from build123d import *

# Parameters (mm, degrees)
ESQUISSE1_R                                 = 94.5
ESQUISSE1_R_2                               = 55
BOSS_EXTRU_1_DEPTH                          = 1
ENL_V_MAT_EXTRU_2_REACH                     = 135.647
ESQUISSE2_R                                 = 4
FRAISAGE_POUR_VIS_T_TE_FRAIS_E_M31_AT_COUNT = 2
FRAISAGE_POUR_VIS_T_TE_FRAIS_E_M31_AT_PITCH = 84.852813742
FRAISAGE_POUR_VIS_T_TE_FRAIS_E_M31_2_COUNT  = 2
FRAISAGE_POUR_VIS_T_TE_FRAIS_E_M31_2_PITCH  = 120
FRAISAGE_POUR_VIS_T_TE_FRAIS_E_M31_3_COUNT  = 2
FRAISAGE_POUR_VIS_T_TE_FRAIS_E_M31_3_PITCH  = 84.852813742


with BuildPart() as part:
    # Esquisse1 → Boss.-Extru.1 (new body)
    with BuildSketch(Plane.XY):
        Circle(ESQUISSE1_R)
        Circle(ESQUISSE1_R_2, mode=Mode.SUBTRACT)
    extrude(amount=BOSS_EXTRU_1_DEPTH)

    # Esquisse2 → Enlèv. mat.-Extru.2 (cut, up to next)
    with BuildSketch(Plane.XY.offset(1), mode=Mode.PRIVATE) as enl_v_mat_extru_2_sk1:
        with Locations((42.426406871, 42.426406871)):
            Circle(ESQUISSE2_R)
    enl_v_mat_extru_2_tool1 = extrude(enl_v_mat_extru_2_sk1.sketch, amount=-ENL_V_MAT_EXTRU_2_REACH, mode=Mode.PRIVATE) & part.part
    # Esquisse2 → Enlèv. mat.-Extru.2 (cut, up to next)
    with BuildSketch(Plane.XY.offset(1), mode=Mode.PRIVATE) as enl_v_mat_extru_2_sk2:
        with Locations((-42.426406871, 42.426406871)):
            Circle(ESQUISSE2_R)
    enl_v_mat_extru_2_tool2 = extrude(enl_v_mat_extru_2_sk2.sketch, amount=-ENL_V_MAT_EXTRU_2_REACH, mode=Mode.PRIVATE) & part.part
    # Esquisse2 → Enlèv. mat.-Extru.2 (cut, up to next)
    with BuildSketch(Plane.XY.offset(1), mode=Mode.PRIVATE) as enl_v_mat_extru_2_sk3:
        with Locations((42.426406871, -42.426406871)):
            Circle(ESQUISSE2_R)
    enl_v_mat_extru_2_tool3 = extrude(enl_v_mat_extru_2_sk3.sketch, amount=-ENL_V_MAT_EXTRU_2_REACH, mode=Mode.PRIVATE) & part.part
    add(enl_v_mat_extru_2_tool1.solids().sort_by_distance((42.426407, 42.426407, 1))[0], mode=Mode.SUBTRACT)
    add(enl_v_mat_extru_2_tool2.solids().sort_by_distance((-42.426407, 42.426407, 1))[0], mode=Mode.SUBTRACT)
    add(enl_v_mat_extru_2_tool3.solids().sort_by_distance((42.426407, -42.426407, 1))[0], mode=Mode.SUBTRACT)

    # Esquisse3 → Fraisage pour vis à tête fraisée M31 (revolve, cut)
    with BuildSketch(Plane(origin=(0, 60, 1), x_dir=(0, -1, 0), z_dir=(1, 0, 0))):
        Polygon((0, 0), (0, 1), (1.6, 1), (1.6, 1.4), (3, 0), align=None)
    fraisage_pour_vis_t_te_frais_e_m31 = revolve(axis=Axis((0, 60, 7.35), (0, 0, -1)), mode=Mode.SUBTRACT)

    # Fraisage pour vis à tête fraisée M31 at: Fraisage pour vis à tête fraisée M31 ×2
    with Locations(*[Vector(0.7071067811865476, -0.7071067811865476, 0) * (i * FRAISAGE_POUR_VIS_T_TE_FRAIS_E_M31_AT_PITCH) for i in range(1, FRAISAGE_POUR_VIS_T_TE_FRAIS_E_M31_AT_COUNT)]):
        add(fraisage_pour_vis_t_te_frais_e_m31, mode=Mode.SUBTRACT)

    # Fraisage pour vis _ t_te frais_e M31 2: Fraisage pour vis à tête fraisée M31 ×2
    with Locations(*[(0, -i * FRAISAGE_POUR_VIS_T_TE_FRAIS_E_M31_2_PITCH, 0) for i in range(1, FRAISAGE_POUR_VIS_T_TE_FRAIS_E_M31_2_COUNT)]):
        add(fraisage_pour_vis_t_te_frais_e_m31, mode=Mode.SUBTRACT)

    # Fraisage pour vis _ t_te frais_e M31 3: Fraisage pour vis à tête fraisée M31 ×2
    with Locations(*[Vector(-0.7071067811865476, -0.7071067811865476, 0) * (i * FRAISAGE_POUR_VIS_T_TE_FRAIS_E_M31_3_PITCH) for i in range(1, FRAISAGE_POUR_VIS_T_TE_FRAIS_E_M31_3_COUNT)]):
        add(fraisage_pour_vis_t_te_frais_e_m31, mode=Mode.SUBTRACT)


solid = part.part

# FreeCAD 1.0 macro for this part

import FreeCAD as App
import Part
import Sketcher
from FreeCAD import Vector
Q = App.Units.Quantity


def add_polygon(sketch, points):
    """Adds a closed chain of lines whose ends are joined by coincident constraints."""
    first, n = sketch.GeometryCount, len(points)
    for a, b in zip(points, points[1:] + points[:1]):
        sketch.addGeometry(Part.LineSegment(App.Vector(*a, 0), App.Vector(*b, 0)), False)
    for i in range(n):
        sketch.addConstraint(Sketcher.Constraint("Coincident", first + i, 2, first + (i + 1) % n, 1))

doc = App.newDocument("Part")
body = doc.addObject("PartDesign::Body", "Body")

# Sketch on XY plane
sketch1 = doc.addObject("Sketcher::SketchObject", "Sketch")
body.addObject(sketch1)
sketch1.AttachmentSupport = (doc.XY_Plane, [""])
sketch1.MapMode = "FlatFace"
sketch1.addGeometry([
    Part.Circle(Vector(0, 0, 0), Vector(0, 0, 1), 94.5),
    Part.Circle(Vector(0, 0, 0), Vector(0, 0, 1), 55),
], False)
sketch1.addConstraint([
    Sketcher.Constraint("Coincident", 0, 3, -1, 1),
    Sketcher.Constraint("Coincident", 1, 3, -1, 1),
    Sketcher.Constraint("Diameter", 0, Q("189 mm")),
    Sketcher.Constraint("Diameter", 1, Q("110 mm")),
])
pad1 = doc.addObject("PartDesign::Pad", "Pad")
body.addObject(pad1)
pad1.Profile = sketch1
pad1.Length = 1

# Sketch on XY plane
sketch2 = doc.addObject("Sketcher::SketchObject", "Sketch001")
body.addObject(sketch2)
sketch2.AttachmentSupport = (doc.XY_Plane, [""])
sketch2.MapMode = "FlatFace"
sketch2.AttachmentOffset = App.Placement(Vector(0, 0, 1), App.Rotation())
sketch2.addGeometry(Part.Circle(Vector(42.426407, 42.426407, 0), Vector(0, 0, 1), 4), False)
sketch2.addConstraint([
    Sketcher.Constraint("Diameter", 0, Q("8 mm")),
    Sketcher.Constraint("DistanceX", -1, 1, 0, 3, Q("42.426407 mm")),
    Sketcher.Constraint("DistanceY", -1, 1, 0, 3, Q("42.426407 mm")),
])
pocket1 = doc.addObject("PartDesign::Pocket", "Pocket")
body.addObject(pocket1)
pocket1.Profile = sketch2
pocket1.Type = "UpToFirst"

# Sketch on XY plane
sketch3 = doc.addObject("Sketcher::SketchObject", "Sketch002")
body.addObject(sketch3)
sketch3.AttachmentSupport = (doc.XY_Plane, [""])
sketch3.MapMode = "FlatFace"
sketch3.AttachmentOffset = App.Placement(Vector(0, 0, 1), App.Rotation())
sketch3.addGeometry(Part.Circle(Vector(-42.426407, 42.426407, 0), Vector(0, 0, 1), 4), False)
sketch3.addConstraint([
    Sketcher.Constraint("Diameter", 0, Q("8 mm")),
    Sketcher.Constraint("DistanceX", 0, 3, -1, 1, Q("42.426407 mm")),
    Sketcher.Constraint("DistanceY", -1, 1, 0, 3, Q("42.426407 mm")),
])
pocket2 = doc.addObject("PartDesign::Pocket", "Pocket001")
body.addObject(pocket2)
pocket2.Profile = sketch3
pocket2.Type = "UpToFirst"

# Sketch on XY plane
sketch4 = doc.addObject("Sketcher::SketchObject", "Sketch003")
body.addObject(sketch4)
sketch4.AttachmentSupport = (doc.XY_Plane, [""])
sketch4.MapMode = "FlatFace"
sketch4.AttachmentOffset = App.Placement(Vector(0, 0, 1), App.Rotation())
sketch4.addGeometry(Part.Circle(Vector(42.426407, -42.426407, 0), Vector(0, 0, 1), 4), False)
sketch4.addConstraint([
    Sketcher.Constraint("Diameter", 0, Q("8 mm")),
    Sketcher.Constraint("DistanceX", -1, 1, 0, 3, Q("42.426407 mm")),
    Sketcher.Constraint("DistanceY", 0, 3, -1, 1, Q("42.426407 mm")),
])
pocket3 = doc.addObject("PartDesign::Pocket", "Pocket002")
body.addObject(pocket3)
pocket3.Profile = sketch4
pocket3.Type = "UpToFirst"

# Sketch on YZ plane
sketch5 = doc.addObject("Sketcher::SketchObject", "Sketch004")
body.addObject(sketch5)
sketch5.AttachmentSupport = (doc.YZ_Plane, [""])
sketch5.MapMode = "FlatFace"
add_polygon(sketch5, [(60, 0), (60, 1), (57, 1), (58.4, -0.4), (58.4, 0)])  # lines 0-4
sketch5.addGeometry(Part.LineSegment(Vector(60, 1, 0), Vector(60, -0.4, 0)), True)  # axis
sketch5.addConstraint([
    Sketcher.Constraint("Vertical", 0),
    Sketcher.Constraint("Horizontal", 1),
    Sketcher.Constraint("Vertical", 3),
    Sketcher.Constraint("Horizontal", 4),
    Sketcher.Constraint("Vertical", 5),
    Sketcher.Constraint("Coincident", 5, 1, 0, 2),
    Sketcher.Constraint("PointOnObject", 3, 2, -1),
    Sketcher.Constraint("Horizontal", 2, 2, 5, 2),
    Sketcher.Constraint("DistanceX", 1, 2, 1, 1, Q("3 mm")),
    Sketcher.Constraint("DistanceY", 0, 1, 0, 2, Q("1 mm")),
    Sketcher.Constraint("Angle", 2, Q("-45 deg")),
    Sketcher.Constraint("DistanceX", 4, 1, 4, 2, Q("1.6 mm")),
    Sketcher.Constraint("DistanceX", -1, 1, 0, 2, Q("60 mm")),
])
groove = doc.addObject("PartDesign::Groove", "Groove")
body.addObject(groove)
groove.Profile = sketch5
groove.ReferenceAxis = (sketch5, ["Axis0"])
groove.Angle = 360
doc.recompute()

datumline = doc.addObject("PartDesign::Line", "DatumLine")
body.addObject(datumline)
datumline.Placement = App.Placement(Vector(0, 0, 0), App.Rotation(Vector(0, 0, 1), Vector(0.707106781, -0.707106781, 0)))
linearpattern = doc.addObject("PartDesign::LinearPattern", "LinearPattern")
body.addObject(linearpattern)
linearpattern.Originals = [groove]
linearpattern.Direction = (datumline, [""])
linearpattern.Mode = "offset"
linearpattern.Offset = 84.852814
linearpattern.Occurrences = 2
body.Tip = linearpattern
doc.recompute()

linearpattern2 = doc.addObject("PartDesign::LinearPattern", "LinearPattern001")
body.addObject(linearpattern2)
linearpattern2.Originals = [groove]
linearpattern2.Direction = (doc.Y_Axis, [""])
linearpattern2.Mode = "offset"
linearpattern2.Offset = 120
linearpattern2.Occurrences = 2
linearpattern2.Reversed = True
body.Tip = linearpattern2
doc.recompute()

datumline2 = doc.addObject("PartDesign::Line", "DatumLine001")
body.addObject(datumline2)
datumline2.Placement = App.Placement(Vector(0, 0, 0), App.Rotation(Vector(0, 0, 1), Vector(-0.707106781, -0.707106781, 0)))
linearpattern3 = doc.addObject("PartDesign::LinearPattern", "LinearPattern002")
body.addObject(linearpattern3)
linearpattern3.Originals = [groove]
linearpattern3.Direction = (datumline2, [""])
linearpattern3.Mode = "offset"
linearpattern3.Offset = 84.852814
linearpattern3.Occurrences = 2
body.Tip = linearpattern3

doc.recompute()
